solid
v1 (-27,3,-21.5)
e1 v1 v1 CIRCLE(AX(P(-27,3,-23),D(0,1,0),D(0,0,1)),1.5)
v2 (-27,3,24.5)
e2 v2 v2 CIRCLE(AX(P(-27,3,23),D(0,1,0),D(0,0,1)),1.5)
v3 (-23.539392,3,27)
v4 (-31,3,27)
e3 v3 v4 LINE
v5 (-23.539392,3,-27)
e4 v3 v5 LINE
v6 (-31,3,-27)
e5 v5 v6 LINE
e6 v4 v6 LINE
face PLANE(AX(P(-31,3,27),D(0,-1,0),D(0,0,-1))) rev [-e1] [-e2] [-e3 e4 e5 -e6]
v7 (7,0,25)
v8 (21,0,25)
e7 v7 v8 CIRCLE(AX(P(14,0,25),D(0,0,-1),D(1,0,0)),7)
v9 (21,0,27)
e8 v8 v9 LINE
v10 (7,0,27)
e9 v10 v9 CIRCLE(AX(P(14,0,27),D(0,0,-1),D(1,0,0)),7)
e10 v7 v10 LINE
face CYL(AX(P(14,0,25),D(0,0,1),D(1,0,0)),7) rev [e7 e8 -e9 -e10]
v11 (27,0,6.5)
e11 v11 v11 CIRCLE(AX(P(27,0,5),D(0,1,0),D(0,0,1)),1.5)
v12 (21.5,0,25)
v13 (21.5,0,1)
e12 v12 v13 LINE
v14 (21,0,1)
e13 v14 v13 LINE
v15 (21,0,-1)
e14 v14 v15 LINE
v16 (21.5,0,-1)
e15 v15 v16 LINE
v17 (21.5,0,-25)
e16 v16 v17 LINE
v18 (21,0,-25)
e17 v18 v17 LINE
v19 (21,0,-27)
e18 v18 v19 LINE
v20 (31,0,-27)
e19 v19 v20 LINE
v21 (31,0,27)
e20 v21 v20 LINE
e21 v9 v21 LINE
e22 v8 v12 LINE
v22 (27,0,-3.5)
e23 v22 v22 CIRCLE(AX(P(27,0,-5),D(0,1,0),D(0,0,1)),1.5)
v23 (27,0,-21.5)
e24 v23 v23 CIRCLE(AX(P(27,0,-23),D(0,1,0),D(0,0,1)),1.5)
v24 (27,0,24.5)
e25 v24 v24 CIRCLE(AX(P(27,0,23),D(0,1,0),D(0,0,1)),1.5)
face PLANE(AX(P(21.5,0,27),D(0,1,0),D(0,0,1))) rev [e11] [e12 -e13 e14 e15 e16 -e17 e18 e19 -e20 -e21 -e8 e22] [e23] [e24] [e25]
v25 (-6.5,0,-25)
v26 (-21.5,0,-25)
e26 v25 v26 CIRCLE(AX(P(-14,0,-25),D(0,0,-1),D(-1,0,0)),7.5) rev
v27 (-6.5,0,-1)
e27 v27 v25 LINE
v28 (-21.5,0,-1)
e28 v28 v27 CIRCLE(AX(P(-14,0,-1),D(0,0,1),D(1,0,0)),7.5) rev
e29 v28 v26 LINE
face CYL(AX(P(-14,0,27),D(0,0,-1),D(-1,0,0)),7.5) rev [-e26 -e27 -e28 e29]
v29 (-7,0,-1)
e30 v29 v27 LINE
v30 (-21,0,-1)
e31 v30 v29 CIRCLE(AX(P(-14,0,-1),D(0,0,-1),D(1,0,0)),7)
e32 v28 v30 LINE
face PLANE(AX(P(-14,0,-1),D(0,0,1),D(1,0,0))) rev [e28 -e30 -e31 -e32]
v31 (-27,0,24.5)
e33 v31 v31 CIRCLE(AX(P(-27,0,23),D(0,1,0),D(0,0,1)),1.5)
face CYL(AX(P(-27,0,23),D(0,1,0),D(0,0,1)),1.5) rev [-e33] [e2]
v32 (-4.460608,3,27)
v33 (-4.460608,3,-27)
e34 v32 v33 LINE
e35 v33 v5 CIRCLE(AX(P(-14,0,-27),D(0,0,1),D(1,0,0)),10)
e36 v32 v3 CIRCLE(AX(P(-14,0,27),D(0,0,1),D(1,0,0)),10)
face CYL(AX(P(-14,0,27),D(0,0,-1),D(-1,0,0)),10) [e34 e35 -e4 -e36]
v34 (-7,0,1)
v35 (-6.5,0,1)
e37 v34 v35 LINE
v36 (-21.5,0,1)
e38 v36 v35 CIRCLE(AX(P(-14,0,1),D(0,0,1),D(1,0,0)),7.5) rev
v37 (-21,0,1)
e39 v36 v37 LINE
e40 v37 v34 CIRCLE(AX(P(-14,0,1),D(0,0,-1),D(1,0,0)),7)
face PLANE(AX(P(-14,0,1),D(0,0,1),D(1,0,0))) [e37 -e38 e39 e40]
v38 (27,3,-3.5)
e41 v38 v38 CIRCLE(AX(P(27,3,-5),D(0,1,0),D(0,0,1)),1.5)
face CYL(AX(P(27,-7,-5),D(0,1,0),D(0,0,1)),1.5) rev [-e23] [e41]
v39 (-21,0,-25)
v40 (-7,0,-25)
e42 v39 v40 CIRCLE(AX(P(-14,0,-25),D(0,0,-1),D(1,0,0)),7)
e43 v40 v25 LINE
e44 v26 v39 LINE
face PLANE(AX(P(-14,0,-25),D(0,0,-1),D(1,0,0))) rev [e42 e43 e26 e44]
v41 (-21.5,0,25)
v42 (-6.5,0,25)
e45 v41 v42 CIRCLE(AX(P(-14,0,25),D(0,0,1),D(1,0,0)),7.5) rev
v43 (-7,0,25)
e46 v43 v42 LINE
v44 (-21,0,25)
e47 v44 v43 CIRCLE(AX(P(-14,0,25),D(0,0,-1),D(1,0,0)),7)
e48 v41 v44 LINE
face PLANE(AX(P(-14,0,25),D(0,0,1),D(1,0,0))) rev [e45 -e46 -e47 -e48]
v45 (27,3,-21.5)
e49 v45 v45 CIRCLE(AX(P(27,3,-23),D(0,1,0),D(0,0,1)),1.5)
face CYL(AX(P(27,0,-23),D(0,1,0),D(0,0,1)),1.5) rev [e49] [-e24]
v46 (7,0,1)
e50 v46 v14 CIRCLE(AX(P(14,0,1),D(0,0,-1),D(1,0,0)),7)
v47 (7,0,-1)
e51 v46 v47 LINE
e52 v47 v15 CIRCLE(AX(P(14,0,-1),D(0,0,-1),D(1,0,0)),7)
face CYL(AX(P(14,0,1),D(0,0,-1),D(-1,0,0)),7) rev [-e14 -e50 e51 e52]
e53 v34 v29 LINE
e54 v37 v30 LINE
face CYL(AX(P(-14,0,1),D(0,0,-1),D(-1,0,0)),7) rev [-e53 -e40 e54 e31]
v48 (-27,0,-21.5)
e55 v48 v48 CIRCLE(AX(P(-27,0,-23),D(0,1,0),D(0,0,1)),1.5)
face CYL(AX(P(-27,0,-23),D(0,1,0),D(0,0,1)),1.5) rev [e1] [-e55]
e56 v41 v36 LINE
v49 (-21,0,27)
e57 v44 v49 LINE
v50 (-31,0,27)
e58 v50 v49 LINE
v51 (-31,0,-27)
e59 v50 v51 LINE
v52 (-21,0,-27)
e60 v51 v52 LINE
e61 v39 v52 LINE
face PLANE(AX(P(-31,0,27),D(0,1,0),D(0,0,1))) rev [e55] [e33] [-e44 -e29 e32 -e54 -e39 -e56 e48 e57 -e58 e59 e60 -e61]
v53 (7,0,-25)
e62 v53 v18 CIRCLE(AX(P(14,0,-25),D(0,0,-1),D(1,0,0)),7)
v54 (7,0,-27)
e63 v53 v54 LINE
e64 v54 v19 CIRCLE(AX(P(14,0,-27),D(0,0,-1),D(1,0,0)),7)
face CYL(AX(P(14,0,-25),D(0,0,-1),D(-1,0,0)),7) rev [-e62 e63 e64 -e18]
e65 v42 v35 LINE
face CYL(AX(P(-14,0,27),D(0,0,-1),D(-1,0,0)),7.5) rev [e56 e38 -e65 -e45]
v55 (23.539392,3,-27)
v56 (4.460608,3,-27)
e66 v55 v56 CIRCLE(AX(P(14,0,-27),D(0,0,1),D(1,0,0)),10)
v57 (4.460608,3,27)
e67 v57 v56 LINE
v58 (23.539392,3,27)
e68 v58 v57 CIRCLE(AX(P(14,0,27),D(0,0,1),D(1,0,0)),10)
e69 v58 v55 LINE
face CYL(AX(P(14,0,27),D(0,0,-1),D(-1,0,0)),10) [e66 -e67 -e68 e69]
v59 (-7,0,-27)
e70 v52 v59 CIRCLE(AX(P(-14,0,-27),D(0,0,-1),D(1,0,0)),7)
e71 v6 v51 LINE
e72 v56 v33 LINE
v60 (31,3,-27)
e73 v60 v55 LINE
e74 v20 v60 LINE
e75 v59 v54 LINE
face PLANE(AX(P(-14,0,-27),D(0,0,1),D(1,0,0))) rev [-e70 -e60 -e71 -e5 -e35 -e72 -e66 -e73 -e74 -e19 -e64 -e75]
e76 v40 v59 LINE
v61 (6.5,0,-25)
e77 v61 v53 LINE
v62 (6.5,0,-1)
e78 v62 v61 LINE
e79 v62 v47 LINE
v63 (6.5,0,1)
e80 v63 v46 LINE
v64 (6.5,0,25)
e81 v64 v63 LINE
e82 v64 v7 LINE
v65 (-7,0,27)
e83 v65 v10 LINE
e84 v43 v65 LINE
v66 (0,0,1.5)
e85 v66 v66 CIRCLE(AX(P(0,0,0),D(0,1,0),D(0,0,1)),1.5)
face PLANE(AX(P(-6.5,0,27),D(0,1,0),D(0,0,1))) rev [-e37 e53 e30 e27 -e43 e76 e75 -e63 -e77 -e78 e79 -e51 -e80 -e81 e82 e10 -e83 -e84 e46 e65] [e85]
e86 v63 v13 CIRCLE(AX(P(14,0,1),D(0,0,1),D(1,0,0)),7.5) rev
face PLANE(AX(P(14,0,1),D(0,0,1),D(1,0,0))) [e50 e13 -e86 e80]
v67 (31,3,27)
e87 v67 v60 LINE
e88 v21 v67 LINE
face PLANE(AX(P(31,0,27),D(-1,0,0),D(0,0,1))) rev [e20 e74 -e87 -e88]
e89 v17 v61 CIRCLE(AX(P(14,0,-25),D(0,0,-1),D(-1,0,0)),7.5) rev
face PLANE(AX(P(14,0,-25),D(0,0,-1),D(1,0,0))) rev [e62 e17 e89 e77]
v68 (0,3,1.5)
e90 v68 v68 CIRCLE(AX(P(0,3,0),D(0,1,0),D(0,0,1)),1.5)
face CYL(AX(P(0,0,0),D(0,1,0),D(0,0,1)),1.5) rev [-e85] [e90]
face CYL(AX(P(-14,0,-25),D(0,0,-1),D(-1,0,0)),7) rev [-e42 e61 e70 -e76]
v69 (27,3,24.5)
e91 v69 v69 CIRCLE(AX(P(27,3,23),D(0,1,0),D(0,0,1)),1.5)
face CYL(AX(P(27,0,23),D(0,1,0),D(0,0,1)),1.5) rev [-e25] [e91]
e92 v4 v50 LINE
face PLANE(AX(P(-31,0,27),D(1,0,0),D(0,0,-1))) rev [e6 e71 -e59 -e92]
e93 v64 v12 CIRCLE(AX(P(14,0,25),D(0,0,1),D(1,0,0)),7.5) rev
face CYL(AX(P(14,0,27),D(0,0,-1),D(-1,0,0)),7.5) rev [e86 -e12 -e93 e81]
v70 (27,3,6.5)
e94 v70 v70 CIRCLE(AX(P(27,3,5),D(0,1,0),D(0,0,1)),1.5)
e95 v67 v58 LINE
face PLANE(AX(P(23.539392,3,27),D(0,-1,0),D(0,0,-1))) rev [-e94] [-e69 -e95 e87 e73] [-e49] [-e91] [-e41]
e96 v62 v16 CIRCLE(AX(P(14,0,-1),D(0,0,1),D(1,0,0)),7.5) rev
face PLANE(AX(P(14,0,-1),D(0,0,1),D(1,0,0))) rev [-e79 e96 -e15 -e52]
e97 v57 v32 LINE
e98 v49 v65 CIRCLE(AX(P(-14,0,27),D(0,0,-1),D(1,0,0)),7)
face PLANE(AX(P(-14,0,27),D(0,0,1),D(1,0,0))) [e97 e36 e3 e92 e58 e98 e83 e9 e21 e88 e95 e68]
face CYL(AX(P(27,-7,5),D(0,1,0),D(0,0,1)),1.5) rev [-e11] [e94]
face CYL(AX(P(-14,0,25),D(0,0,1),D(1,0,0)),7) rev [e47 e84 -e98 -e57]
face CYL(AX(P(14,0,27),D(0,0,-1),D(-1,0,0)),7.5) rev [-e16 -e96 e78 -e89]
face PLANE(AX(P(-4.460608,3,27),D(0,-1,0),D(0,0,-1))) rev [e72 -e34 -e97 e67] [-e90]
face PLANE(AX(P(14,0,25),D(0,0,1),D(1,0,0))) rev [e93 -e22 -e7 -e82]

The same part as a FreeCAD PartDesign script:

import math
import FreeCAD as App
import Part
import Sketcher

doc = App.newDocument("Part")
body = doc.addObject("PartDesign::Body", "Body")

# Sketch on XY plane
sketch1 = body.newObject("Sketcher::SketchObject", "Sketch")
sketch1.AttachmentSupport = (doc.getObject("XY_Plane"), [""])
sketch1.MapMode = "FlatFace"
sketch1.addGeometry([
    Part.LineSegment(App.Vector(-23.539392, 3, 0), App.Vector(-31, 3, 0)),  # 0
    Part.LineSegment(App.Vector(-31, 3, 0), App.Vector(-31, 0, 0)),  # 1
    Part.LineSegment(App.Vector(-31, 0, 0), App.Vector(-21.5, 0, 0)),  # 2
    Part.ArcOfCircle(Part.Circle(App.Vector(-14, 0, 0), App.Vector(0, 0, 1), 7.5), math.radians(0), math.radians(180)),  # 3
    Part.LineSegment(App.Vector(-6.5, 0, 0), App.Vector(6.5, 0, 0)),  # 4
    Part.ArcOfCircle(Part.Circle(App.Vector(14, 0, 0), App.Vector(0, 0, 1), 7.5), math.radians(0), math.radians(180)),  # 5
    Part.LineSegment(App.Vector(21.5, 0, 0), App.Vector(31, 0, 0)),  # 6
    Part.LineSegment(App.Vector(31, 0, 0), App.Vector(31, 3, 0)),  # 7
    Part.LineSegment(App.Vector(31, 3, 0), App.Vector(23.539392, 3, 0)),  # 8
    Part.ArcOfCircle(Part.Circle(App.Vector(14, 0, 0), App.Vector(0, 0, 1), 10), math.radians(17.457603), math.radians(162.542397)),  # 9
    Part.LineSegment(App.Vector(4.460608, 3, 0), App.Vector(-4.460608, 3, 0)),  # 10
    Part.ArcOfCircle(Part.Circle(App.Vector(-14, 0, 0), App.Vector(0, 0, 1), 10), math.radians(17.457603), math.radians(162.542397)),  # 11
], False)
sketch1.addConstraint([
    Sketcher.Constraint("Coincident", 0, 2, 1, 1),
    Sketcher.Constraint("Coincident", 1, 2, 2, 1),
    Sketcher.Constraint("Coincident", 2, 2, 3, 2),
    Sketcher.Constraint("Coincident", 3, 1, 4, 1),
    Sketcher.Constraint("Coincident", 4, 2, 5, 2),
    Sketcher.Constraint("Coincident", 5, 1, 6, 1),
    Sketcher.Constraint("Coincident", 6, 2, 7, 1),
    Sketcher.Constraint("Coincident", 7, 2, 8, 1),
    Sketcher.Constraint("Coincident", 8, 2, 9, 1),
    Sketcher.Constraint("Coincident", 9, 2, 10, 1),
    Sketcher.Constraint("Coincident", 10, 2, 11, 1),
    Sketcher.Constraint("Coincident", 11, 2, 0, 1),
    Sketcher.Constraint("Horizontal", 0),
    Sketcher.Constraint("Vertical", 1),
    Sketcher.Constraint("Horizontal", 2),
    Sketcher.Constraint("Horizontal", 4),
    Sketcher.Constraint("Horizontal", 6),
    Sketcher.Constraint("Vertical", 7),
    Sketcher.Constraint("Horizontal", 8),
    Sketcher.Constraint("Horizontal", 10),
    Sketcher.Constraint("Coincident", 9, 3, 5, 3),
    Sketcher.Constraint("Coincident", 11, 3, 3, 3),
    Sketcher.Constraint("Equal", 3, 5),
    Sketcher.Constraint("Equal", 9, 11),
    Sketcher.Constraint("Symmetric", 3, 3, 5, 3, -1, 1),
    Sketcher.Constraint("Symmetric", 1, 2, 6, 2, -1, 1),
    Sketcher.Constraint("Symmetric", 8, 2, 11, 2, -2),
    Sketcher.Constraint("PointOnObject", 1, 2, -1),
    Sketcher.Constraint("PointOnObject", 3, 1, -1),
    Sketcher.Constraint("Horizontal", 8, 2, 9, 2),
    Sketcher.Constraint("Radius", 9, 10.0),
    Sketcher.Constraint("Radius", 3, 7.5),
    Sketcher.Constraint("DistanceX", 4, 1, 4, 2, 13.0),
    Sketcher.Constraint("DistanceY", 1, 2, 1, 1, 3.0),
    Sketcher.Constraint("DistanceX", 2, 1, 2, 2, 9.5),
])
pad1 = body.newObject("PartDesign::Pad", "Pad")
pad1.Profile = sketch1
pad1.Length = 54
pad1.Midplane = True

# Sketch on XY plane
sketch2 = body.newObject("Sketcher::SketchObject", "Sketch001")
sketch2.AttachmentSupport = (doc.getObject("XY_Plane"), [""])
sketch2.MapMode = "FlatFace"
sketch2.AttachmentOffset = App.Placement(App.Vector(0, 0, 27), App.Rotation())
sketch2.addGeometry([
    Part.LineSegment(App.Vector(-22, 0, 0), App.Vector(-21, 0, 0)),  # 0
    Part.ArcOfCircle(Part.Circle(App.Vector(-14, 0, 0), App.Vector(0, 0, 1), 7), math.radians(0), math.radians(180)),  # 1
    Part.LineSegment(App.Vector(-7, 0, 0), App.Vector(-6, 0, 0)),  # 2
    Part.ArcOfCircle(Part.Circle(App.Vector(-14, 0, 0), App.Vector(0, 0, 1), 8), math.radians(0), math.radians(180)),  # 3
    Part.LineSegment(App.Vector(21, 0, 0), App.Vector(22, 0, 0)),  # 4
    Part.ArcOfCircle(Part.Circle(App.Vector(14, 0, 0), App.Vector(0, 0, 1), 8), math.radians(0), math.radians(180)),  # 5
    Part.LineSegment(App.Vector(6, 0, 0), App.Vector(7, 0, 0)),  # 6
    Part.ArcOfCircle(Part.Circle(App.Vector(14, 0, 0), App.Vector(0, 0, 1), 7), math.radians(0), math.radians(180)),  # 7
], False)
sketch2.addConstraint([
    Sketcher.Constraint("Coincident", 0, 2, 1, 2),
    Sketcher.Constraint("Coincident", 1, 1, 2, 1),
    Sketcher.Constraint("Coincident", 2, 2, 3, 1),
    Sketcher.Constraint("Coincident", 3, 2, 0, 1),
    Sketcher.Constraint("Coincident", 4, 2, 5, 1),
    Sketcher.Constraint("Coincident", 5, 2, 6, 1),
    Sketcher.Constraint("Coincident", 6, 2, 7, 2),
    Sketcher.Constraint("Coincident", 7, 1, 4, 1),
    Sketcher.Constraint("Horizontal", 0),
    Sketcher.Constraint("Horizontal", 2),
    Sketcher.Constraint("Horizontal", 4),
    Sketcher.Constraint("Horizontal", 6),
    Sketcher.Constraint("Coincident", 3, 3, 1, 3),
    Sketcher.Constraint("Coincident", 7, 3, 5, 3),
    Sketcher.Constraint("Equal", 3, 5),
    Sketcher.Constraint("Equal", 1, 7),
    Sketcher.Constraint("Symmetric", 1, 3, 5, 3, -1, 1),
    Sketcher.Constraint("PointOnObject", 1, 3, -1),
    Sketcher.Constraint("PointOnObject", 0, 2, -1),
    Sketcher.Constraint("PointOnObject", 1, 1, -1),
    Sketcher.Constraint("PointOnObject", 4, 2, -1),
    Sketcher.Constraint("PointOnObject", 5, 2, -1),
    Sketcher.Constraint("Radius", 1, 7.0),
    Sketcher.Constraint("Radius", 3, 8.0),
    Sketcher.Constraint("DistanceX", 1, 3, -1, 1, 14.0),
])
pad2 = body.newObject("PartDesign::Pad", "Pad001")
pad2.Profile = sketch2
pad2.Length = 2
pad2.Reversed = True
doc.recompute()

mirrored = body.newObject("PartDesign::Mirrored", "Mirrored")
mirrored.Originals = [pad2]
mirrored.MirrorPlane = (doc.getObject("XY_Plane"), [""])
body.Tip = mirrored

# Sketch on XY plane
sketch3 = body.newObject("Sketcher::SketchObject", "Sketch002")
sketch3.AttachmentSupport = (doc.getObject("XY_Plane"), [""])
sketch3.MapMode = "FlatFace"
sketch3.addGeometry([
    Part.LineSegment(App.Vector(-22, 0, 0), App.Vector(-21, 0, 0)),  # 0
    Part.ArcOfCircle(Part.Circle(App.Vector(-14, 0, 0), App.Vector(0, 0, 1), 7), math.radians(0), math.radians(180)),  # 1
    Part.LineSegment(App.Vector(-7, 0, 0), App.Vector(-6, 0, 0)),  # 2
    Part.ArcOfCircle(Part.Circle(App.Vector(-14, 0, 0), App.Vector(0, 0, 1), 8), math.radians(0), math.radians(180)),  # 3
    Part.LineSegment(App.Vector(6, 0, 0), App.Vector(7, 0, 0)),  # 4
    Part.ArcOfCircle(Part.Circle(App.Vector(14, 0, 0), App.Vector(0, 0, 1), 7), math.radians(0), math.radians(180)),  # 5
    Part.LineSegment(App.Vector(21, 0, 0), App.Vector(22, 0, 0)),  # 6
    Part.ArcOfCircle(Part.Circle(App.Vector(14, 0, 0), App.Vector(0, 0, 1), 8), math.radians(0), math.radians(180)),  # 7
], False)
sketch3.addConstraint([
    Sketcher.Constraint("Coincident", 0, 2, 1, 2),
    Sketcher.Constraint("Coincident", 1, 1, 2, 1),
    Sketcher.Constraint("Coincident", 2, 2, 3, 1),
    Sketcher.Constraint("Coincident", 3, 2, 0, 1),
    Sketcher.Constraint("Coincident", 4, 2, 5, 2),
    Sketcher.Constraint("Coincident", 5, 1, 6, 1),
    Sketcher.Constraint("Coincident", 6, 2, 7, 1),
    Sketcher.Constraint("Coincident", 7, 2, 4, 1),
    Sketcher.Constraint("Horizontal", 0),
    Sketcher.Constraint("Horizontal", 2),
    Sketcher.Constraint("Horizontal", 4),
    Sketcher.Constraint("Horizontal", 6),
    Sketcher.Constraint("Coincident", 3, 3, 1, 3),
    Sketcher.Constraint("Coincident", 7, 3, 5, 3),
    Sketcher.Constraint("Equal", 1, 5),
    Sketcher.Constraint("Equal", 3, 7),
    Sketcher.Constraint("Symmetric", 1, 3, 5, 3, -1, 1),
    Sketcher.Constraint("PointOnObject", 1, 3, -1),
    Sketcher.Constraint("PointOnObject", 0, 2, -1),
    Sketcher.Constraint("PointOnObject", 1, 1, -1),
    Sketcher.Constraint("PointOnObject", 4, 2, -1),
    Sketcher.Constraint("PointOnObject", 5, 1, -1),
    Sketcher.Constraint("Radius", 1, 7.0),
    Sketcher.Constraint("Radius", 3, 8.0),
    Sketcher.Constraint("DistanceX", 1, 3, -1, 1, 14.0),
])
pad3 = body.newObject("PartDesign::Pad", "Pad002")
pad3.Profile = sketch3
pad3.Length = 2
pad3.Midplane = True

# Sketch on XZ plane
sketch4 = body.newObject("Sketcher::SketchObject", "Sketch003")
sketch4.AttachmentSupport = (doc.getObject("XZ_Plane"), [""])
sketch4.MapMode = "FlatFace"
sketch4.AttachmentOffset = App.Placement(App.Vector(0, 0, -3), App.Rotation())
sketch4.addGeometry([
    Part.Circle(App.Vector(-27, -23, 0), App.Vector(0, 0, 1), 1.5),  # 0
    Part.Circle(App.Vector(-27, 23, 0), App.Vector(0, 0, 1), 1.5),  # 1
    Part.Circle(App.Vector(27, 23, 0), App.Vector(0, 0, 1), 1.5),  # 2
    Part.Circle(App.Vector(27, -23, 0), App.Vector(0, 0, 1), 1.5),  # 3
    Part.Circle(App.Vector(0, 0, 0), App.Vector(0, 0, 1), 1.5),  # 4
], False)
sketch4.addConstraint([
    Sketcher.Constraint("Coincident", 4, 3, -1, 1),
    Sketcher.Constraint("Equal", 0, 1),
    Sketcher.Constraint("Equal", 1, 2),
    Sketcher.Constraint("Equal", 2, 3),
    Sketcher.Constraint("Equal", 3, 4),
    Sketcher.Constraint("Symmetric", 0, 3, 2, 3, -1, 1),
    Sketcher.Constraint("Symmetric", 1, 3, 3, 3, -1, 1),
    Sketcher.Constraint("Symmetric", 1, 3, 2, 3, -2),
    Sketcher.Constraint("Diameter", 0, 3.0),
    Sketcher.Constraint("DistanceX", 0, 3, -1, 1, 27.0),
    Sketcher.Constraint("DistanceY", 0, 3, -1, 1, 23.0),
])
pocket1 = body.newObject("PartDesign::Pocket", "Pocket")
pocket1.Profile = sketch4
pocket1.Type = "ThroughAll"
pocket1.Reversed = True

# Sketch on XZ plane
sketch5 = body.newObject("Sketcher::SketchObject", "Sketch004")
sketch5.AttachmentSupport = (doc.getObject("XZ_Plane"), [""])
sketch5.MapMode = "FlatFace"
sketch5.AttachmentOffset = App.Placement(App.Vector(0, 0, -3), App.Rotation())
sketch5.addGeometry([
    Part.Circle(App.Vector(27, -5, 0), App.Vector(0, 0, 1), 1.5),
    Part.Circle(App.Vector(27, 5, 0), App.Vector(0, 0, 1), 1.5),
], False)
sketch5.addConstraint([
    Sketcher.Constraint("Equal", 0, 1),
    Sketcher.Constraint("Symmetric", 0, 3, 1, 3, -1),
    Sketcher.Constraint("Diameter", 0, 3.0),
    Sketcher.Constraint("DistanceX", -1, 1, 0, 3, 27.0),
    Sketcher.Constraint("DistanceY", 0, 3, -1, 1, 5.0),
])
pocket2 = body.newObject("PartDesign::Pocket", "Pocket001")
pocket2.Profile = sketch5
pocket2.Length = 10
pocket2.Reversed = True

doc.recompute()
